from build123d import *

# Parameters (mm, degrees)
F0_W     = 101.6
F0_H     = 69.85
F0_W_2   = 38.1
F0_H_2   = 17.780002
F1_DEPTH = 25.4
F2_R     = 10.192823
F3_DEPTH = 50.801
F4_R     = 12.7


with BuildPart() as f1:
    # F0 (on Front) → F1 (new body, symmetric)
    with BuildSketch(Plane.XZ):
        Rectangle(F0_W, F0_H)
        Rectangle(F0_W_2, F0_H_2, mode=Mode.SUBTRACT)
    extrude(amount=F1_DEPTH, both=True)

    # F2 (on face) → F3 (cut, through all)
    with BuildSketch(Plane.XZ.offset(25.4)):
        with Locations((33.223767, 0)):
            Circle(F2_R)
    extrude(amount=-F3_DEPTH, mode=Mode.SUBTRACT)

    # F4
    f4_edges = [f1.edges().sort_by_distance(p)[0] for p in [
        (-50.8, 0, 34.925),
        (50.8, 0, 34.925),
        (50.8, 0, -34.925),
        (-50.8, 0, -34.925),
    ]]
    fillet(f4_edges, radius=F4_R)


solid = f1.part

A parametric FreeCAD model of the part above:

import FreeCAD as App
import Part
import Sketcher

V = App.Vector
Q = App.Units.Quantity


def edges_at(feature, points):
    """Names of the edges that pass closest to the given points."""
    edges = feature.Shape.Edges
    near = lambda p: min(range(len(edges)), key=lambda i: edges[i].distToShape(Part.Vertex(*p))[0])
    return sorted({f"Edge{near(p) + 1}" for p in points})

doc = App.newDocument("Part")
body = doc.addObject("PartDesign::Body", "Body")

sketch1 = body.newObject("Sketcher::SketchObject", "Sketch")
sketch1.AttachmentSupport = (doc.getObject("XZ_Plane"), [""])
sketch1.MapMode = "FlatFace"
sketch1.addGeometry([
    Part.LineSegment(V(-51, 35, 0), V(-51, -35, 0)),
    Part.LineSegment(V(-51, -35, 0), V(51, -35, 0)),
    Part.LineSegment(V(51, -35, 0), V(51, 35, 0)),
    Part.LineSegment(V(51, 35, 0), V(-51, 35, 0)),
    Part.LineSegment(V(19, -9, 0), V(-19, -9, 0)),
    Part.LineSegment(V(-19, -9, 0), V(-19, 9, 0)),
    Part.LineSegment(V(-19, 9, 0), V(19, 9, 0)),
    Part.LineSegment(V(19, 9, 0), V(19, -9, 0)),
], False)
sketch1.addConstraint([
    Sketcher.Constraint("Coincident", 0, 2, 1, 1),
    Sketcher.Constraint("Coincident", 1, 2, 2, 1),
    Sketcher.Constraint("Coincident", 2, 2, 3, 1),
    Sketcher.Constraint("Coincident", 3, 2, 0, 1),
    Sketcher.Constraint("Coincident", 4, 2, 5, 1),
    Sketcher.Constraint("Coincident", 5, 2, 6, 1),
    Sketcher.Constraint("Coincident", 6, 2, 7, 1),
    Sketcher.Constraint("Coincident", 7, 2, 4, 1),
    Sketcher.Constraint("Vertical", 0),
    Sketcher.Constraint("Horizontal", 1),
    Sketcher.Constraint("Vertical", 2),
    Sketcher.Constraint("Horizontal", 3),
    Sketcher.Constraint("Horizontal", 4),
    Sketcher.Constraint("Vertical", 5),
    Sketcher.Constraint("Horizontal", 6),
    Sketcher.Constraint("Vertical", 7),
    Sketcher.Constraint("Symmetric", 0, 2, 2, 2, -1, 1),
    Sketcher.Constraint("Symmetric", 4, 2, 6, 2, -1, 1),
    Sketcher.Constraint("DistanceX", 1, 1, 1, 2, Q("4 in")),
    Sketcher.Constraint("DistanceX", 4, 2, 4, 1, Q("1.5 in")),
    Sketcher.Constraint("DistanceY", 5, 1, 5, 2, Q("0.7000001 in")),
    Sketcher.Constraint("DistanceY", 0, 2, 0, 1, Q("2.75 in")),
])
pad1 = body.newObject("PartDesign::Pad", "Pad")
pad1.Profile = sketch1
pad1.Length = Q("2 in")
pad1.Midplane = True

sketch2 = body.newObject("Sketcher::SketchObject", "Sketch001")
sketch2.AttachmentSupport = (doc.getObject("XZ_Plane"), [""])
sketch2.MapMode = "FlatFace"
sketch2.AttachmentOffset = App.Placement(V(0, 0, 1 * 25.4), App.Rotation())
sketch2.addGeometry(Part.Circle(V(33, 0, 0), V(0, 0, 1), 10), False)
sketch2.addConstraint([
    Sketcher.Constraint("PointOnObject", 0, 3, -1),
    Sketcher.Constraint("Diameter", 0, 20.385646),
    Sketcher.Constraint("DistanceX", -1, 1, 0, 3, 33.223767),
])
pocket1 = body.newObject("PartDesign::Pocket", "Pocket")
pocket1.Profile = sketch2
pocket1.Type = "ThroughAll"
doc.recompute()

fillet = body.newObject("PartDesign::Fillet", "Fillet")
fillet.Base = (pocket1, edges_at(pocket1, [
    (-50.8, 0, 34.925),
    (50.8, 0, 34.925),
    (50.8, 0, -34.925),
    (-50.8, 0, -34.925),
]))
fillet.Radius = Q("0.5 in")

doc.recompute()
